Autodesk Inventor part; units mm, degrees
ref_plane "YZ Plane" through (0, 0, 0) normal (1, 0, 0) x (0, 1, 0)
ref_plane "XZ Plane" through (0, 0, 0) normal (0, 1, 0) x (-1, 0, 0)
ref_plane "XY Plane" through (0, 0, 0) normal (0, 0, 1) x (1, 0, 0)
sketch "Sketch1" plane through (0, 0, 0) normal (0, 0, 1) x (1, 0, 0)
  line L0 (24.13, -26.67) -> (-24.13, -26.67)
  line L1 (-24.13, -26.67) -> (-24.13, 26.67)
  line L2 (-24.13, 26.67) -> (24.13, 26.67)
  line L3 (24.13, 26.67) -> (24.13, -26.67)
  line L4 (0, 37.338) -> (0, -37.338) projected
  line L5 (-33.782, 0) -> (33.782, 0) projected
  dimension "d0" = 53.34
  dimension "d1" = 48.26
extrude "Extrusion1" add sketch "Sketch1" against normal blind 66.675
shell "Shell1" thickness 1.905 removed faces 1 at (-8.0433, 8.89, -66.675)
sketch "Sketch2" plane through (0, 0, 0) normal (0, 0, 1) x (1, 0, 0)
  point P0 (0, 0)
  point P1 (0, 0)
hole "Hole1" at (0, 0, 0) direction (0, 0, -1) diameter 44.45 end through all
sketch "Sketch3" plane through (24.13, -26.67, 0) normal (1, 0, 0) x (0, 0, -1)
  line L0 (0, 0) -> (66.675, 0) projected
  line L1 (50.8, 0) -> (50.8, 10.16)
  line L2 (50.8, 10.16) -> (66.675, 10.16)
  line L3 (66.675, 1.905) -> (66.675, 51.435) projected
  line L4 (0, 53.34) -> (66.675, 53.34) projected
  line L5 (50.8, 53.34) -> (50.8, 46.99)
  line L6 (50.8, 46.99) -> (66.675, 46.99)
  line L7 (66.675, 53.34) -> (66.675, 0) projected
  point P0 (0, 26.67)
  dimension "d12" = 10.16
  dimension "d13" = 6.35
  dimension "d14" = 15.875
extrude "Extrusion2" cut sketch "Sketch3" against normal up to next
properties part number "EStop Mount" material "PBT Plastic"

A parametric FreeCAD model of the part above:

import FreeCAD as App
import Part
import Sketcher
from FreeCAD import Vector
Q = App.Units.Quantity


def faces_at(feature, points):
    """Names of the faces that lie closest to the given points."""
    faces = feature.Shape.Faces
    near = lambda p: min(range(len(faces)), key=lambda i: faces[i].distToShape(Part.Vertex(*p))[0])
    return sorted({f"Face{near(p) + 1}" for p in points})

doc = App.newDocument("Part")
body = doc.addObject("PartDesign::Body", "Body")

sketch1 = body.newObject("Sketcher::SketchObject", "Sketch")
sketch1.AttachmentSupport = (doc.getObject("XY_Plane"), [""])
sketch1.MapMode = "FlatFace"
sketch1.addGeometry([
    Part.LineSegment(Vector(24, -27, 0), Vector(24, 27, 0)),
    Part.LineSegment(Vector(24, 27, 0), Vector(-24, 27, 0)),
    Part.LineSegment(Vector(-24, 27, 0), Vector(-24, -27, 0)),
    Part.LineSegment(Vector(-24, -27, 0), Vector(24, -27, 0)),
], False)
sketch1.addConstraint([
    Sketcher.Constraint("Coincident", 0, 2, 1, 1),
    Sketcher.Constraint("Coincident", 1, 2, 2, 1),
    Sketcher.Constraint("Coincident", 2, 2, 3, 1),
    Sketcher.Constraint("Coincident", 3, 2, 0, 1),
    Sketcher.Constraint("Vertical", 0),
    Sketcher.Constraint("Horizontal", 1),
    Sketcher.Constraint("Vertical", 2),
    Sketcher.Constraint("Horizontal", 3),
    Sketcher.Constraint("Symmetric", 0, 2, 2, 2, -1, 1),
    Sketcher.Constraint("DistanceX", 1, 2, 1, 1, Q("1.9 in")),
    Sketcher.Constraint("DistanceY", 0, 1, 0, 2, Q("2.1 in")),
])
pad1 = body.newObject("PartDesign::Pad", "Pad")
pad1.Profile = sketch1
pad1.Length = Q("2.625 in")
pad1.Reversed = True
doc.recompute()

thickness = body.newObject("PartDesign::Thickness", "Thickness")
thickness.Base = (pad1, faces_at(pad1, [(-8.043, 8.89, -66.675)]))
thickness.Value = Q("0.075 in")
thickness.Reversed = True
thickness.Join = "Intersection"

sketch2 = body.newObject("Sketcher::SketchObject", "Sketch001")
sketch2.AttachmentSupport = (doc.getObject("XY_Plane"), [""])
sketch2.MapMode = "FlatFace"
sketch2.addGeometry(Part.Circle(Vector(0, 0, 0), Vector(0, 0, 1), 22), False)
sketch2.addConstraint([
    Sketcher.Constraint("Coincident", 0, 3, -1, 1),
    Sketcher.Constraint("Diameter", 0, Q("1.75 in")),
])
doc.recompute()
hole = body.newObject("PartDesign::Hole", "Hole")
hole.Profile = sketch2
hole.ThreadType = "None"
hole.Diameter = Q("1.75 in")
hole.DepthType = "ThroughAll"

sketch3 = body.newObject("Sketcher::SketchObject", "Sketch002")
sketch3.AttachmentSupport = (doc.getObject("YZ_Plane"), [""])
sketch3.MapMode = "FlatFace"
sketch3.AttachmentOffset = App.Placement(Vector(0, 0, 0.95 * 25.4), App.Rotation())
sketch3.addGeometry([
    Part.LineSegment(Vector(-17, -51, 0), Vector(-27, -51, 0)),
    Part.LineSegment(Vector(-27, -51, 0), Vector(-27, -67, 0)),
    Part.LineSegment(Vector(-27, -67, 0), Vector(-17, -67, 0)),
    Part.LineSegment(Vector(-17, -67, 0), Vector(-17, -51, 0)),
    Part.LineSegment(Vector(20, -51, 0), Vector(20, -67, 0)),
    Part.LineSegment(Vector(20, -67, 0), Vector(27, -67, 0)),
    Part.LineSegment(Vector(27, -67, 0), Vector(27, -51, 0)),
    Part.LineSegment(Vector(27, -51, 0), Vector(20, -51, 0)),
], False)
sketch3.addConstraint([
    Sketcher.Constraint("Coincident", 0, 2, 1, 1),
    Sketcher.Constraint("Coincident", 1, 2, 2, 1),
    Sketcher.Constraint("Coincident", 2, 2, 3, 1),
    Sketcher.Constraint("Coincident", 3, 2, 0, 1),
    Sketcher.Constraint("Coincident", 4, 2, 5, 1),
    Sketcher.Constraint("Coincident", 5, 2, 6, 1),
    Sketcher.Constraint("Coincident", 6, 2, 7, 1),
    Sketcher.Constraint("Coincident", 7, 2, 4, 1),
    Sketcher.Constraint("Horizontal", 0),
    Sketcher.Constraint("Vertical", 1),
    Sketcher.Constraint("Horizontal", 2),
    Sketcher.Constraint("Vertical", 3),
    Sketcher.Constraint("Vertical", 4),
    Sketcher.Constraint("Horizontal", 5),
    Sketcher.Constraint("Vertical", 6),
    Sketcher.Constraint("Horizontal", 7),
    Sketcher.Constraint("Symmetric", 1, 2, 5, 2, -2),
    Sketcher.Constraint("Horizontal", 3, 2, 6, 2),
    Sketcher.Constraint("DistanceX", 0, 2, 0, 1, Q("0.4 in")),
    Sketcher.Constraint("DistanceX", 5, 1, 5, 2, Q("0.25 in")),
    Sketcher.Constraint("DistanceY", 1, 2, 1, 1, Q("0.625 in")),
    Sketcher.Constraint("DistanceY", 0, 2, -1, 1, Q("2 in")),
    Sketcher.Constraint("DistanceX", -1, 1, 4, 2, Q("0.8 in")),
])
pocket1 = body.newObject("PartDesign::Pocket", "Pocket")
pocket1.Profile = sketch3
pocket1.Length = Q("1.9 in")

doc.recompute()
